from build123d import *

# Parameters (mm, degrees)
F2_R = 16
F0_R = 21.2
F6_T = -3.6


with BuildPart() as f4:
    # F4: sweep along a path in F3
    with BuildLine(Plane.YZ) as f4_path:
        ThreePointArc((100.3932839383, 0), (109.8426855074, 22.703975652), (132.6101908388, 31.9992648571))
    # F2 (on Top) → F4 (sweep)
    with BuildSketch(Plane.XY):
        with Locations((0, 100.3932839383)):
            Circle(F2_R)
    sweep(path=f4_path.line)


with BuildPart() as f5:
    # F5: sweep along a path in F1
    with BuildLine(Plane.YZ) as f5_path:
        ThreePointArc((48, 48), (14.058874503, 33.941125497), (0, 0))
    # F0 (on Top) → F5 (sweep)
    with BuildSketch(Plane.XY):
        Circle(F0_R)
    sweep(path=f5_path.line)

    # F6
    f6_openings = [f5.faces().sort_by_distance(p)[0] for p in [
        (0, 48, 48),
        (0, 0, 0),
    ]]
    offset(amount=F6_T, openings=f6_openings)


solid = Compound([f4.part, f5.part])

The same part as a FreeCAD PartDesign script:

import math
import FreeCAD as App
import Part
import Sketcher


def faces_at(feature, points):
    """Names of the faces that lie closest to the given points."""
    faces = feature.Shape.Faces
    near = lambda p: min(range(len(faces)), key=lambda i: faces[i].distToShape(Part.Vertex(*p))[0])
    return sorted({f"Face{near(p) + 1}" for p in points})

doc = App.newDocument("Part")
body = doc.addObject("PartDesign::Body", "Body")

# Sketch on XY plane
sketch1 = doc.addObject("Sketcher::SketchObject", "Sketch")
body.addObject(sketch1)
sketch1.AttachmentSupport = (doc.XY_Plane, [""])
sketch1.MapMode = "FlatFace"
sketch1.addGeometry(Part.Circle(App.Vector(0, 100, 0), App.Vector(0, 0, 1), 16), False)
sketch1.addConstraint(Sketcher.Constraint("PointOnObject", 0, 3, -2))
sketch1.addConstraint(Sketcher.Constraint("Diameter", 0, 32.0))
sketch1.addConstraint(Sketcher.Constraint("DistanceY", -1, 1, 0, 3, 100.393284))

# Sketch on YZ plane
sketch2 = doc.addObject("Sketcher::SketchObject", "Sketch001")
body.addObject(sketch2)
sketch2.AttachmentSupport = (doc.YZ_Plane, [""])
sketch2.MapMode = "FlatFace"
sketch2.addGeometry(Part.ArcOfCircle(Part.Circle(App.Vector(132, 0, 0), App.Vector(0, 0, 1), 32), math.radians(90), math.radians(180)), False)
sketch2.addConstraint(Sketcher.Constraint("PointOnObject", 0, 3, -1))
sketch2.addConstraint(Sketcher.Constraint("PointOnObject", 0, 2, -1))
sketch2.addConstraint(Sketcher.Constraint("Radius", 0, 32.0))
sketch2.addConstraint(Sketcher.Constraint("DistanceX", -1, 1, 0, 1, 132.610191))
sketch2.addConstraint(Sketcher.Constraint("DistanceX", -1, 1, 0, 3, 132.393284))
doc.recompute()

additivepipe = doc.addObject("PartDesign::AdditivePipe", "AdditivePipe")
body.addObject(additivepipe)
additivepipe.Profile = sketch1
additivepipe.Spine = (sketch2, ["Edge1"])
body2 = doc.addObject("PartDesign::Body", "Body001")

# Sketch on XY plane
sketch3 = doc.addObject("Sketcher::SketchObject", "Sketch002")
body2.addObject(sketch3)
sketch3.AttachmentSupport = (doc.getObject("XY_Plane001"), [""])
sketch3.MapMode = "FlatFace"
sketch3.addGeometry(Part.Circle(App.Vector(0, 0, 0), App.Vector(0, 0, 1), 21), False)
sketch3.addConstraint(Sketcher.Constraint("Coincident", 0, 3, -1, 1))
sketch3.addConstraint(Sketcher.Constraint("Diameter", 0, 42.4))

# Sketch on YZ plane
sketch4 = doc.addObject("Sketcher::SketchObject", "Sketch003")
body2.addObject(sketch4)
sketch4.AttachmentSupport = (doc.getObject("YZ_Plane001"), [""])
sketch4.MapMode = "FlatFace"
sketch4.addGeometry(Part.ArcOfCircle(Part.Circle(App.Vector(48, 0, 0), App.Vector(0, 0, 1), 48), math.radians(90), math.radians(180)), False)
sketch4.addConstraint(Sketcher.Constraint("Coincident", 0, 2, -1, 1))
sketch4.addConstraint(Sketcher.Constraint("PointOnObject", 0, 3, -1))
sketch4.addConstraint(Sketcher.Constraint("Radius", 0, 48.0))
sketch4.addConstraint(Sketcher.Constraint("DistanceX", -1, 1, 0, 1, 48.0))
doc.recompute()

additivepipe2 = doc.addObject("PartDesign::AdditivePipe", "AdditivePipe001")
body2.addObject(additivepipe2)
additivepipe2.Profile = sketch3
additivepipe2.Spine = (sketch4, ["Edge1"])
doc.recompute()

thickness = doc.addObject("PartDesign::Thickness", "Thickness")
body2.addObject(thickness)
thickness.Base = (additivepipe2, faces_at(additivepipe2, [(0, 48, 48), (0, 0, 0)]))
thickness.Value = 3.6
thickness.Reversed = True
thickness.Join = "Arc"

doc.recompute()
